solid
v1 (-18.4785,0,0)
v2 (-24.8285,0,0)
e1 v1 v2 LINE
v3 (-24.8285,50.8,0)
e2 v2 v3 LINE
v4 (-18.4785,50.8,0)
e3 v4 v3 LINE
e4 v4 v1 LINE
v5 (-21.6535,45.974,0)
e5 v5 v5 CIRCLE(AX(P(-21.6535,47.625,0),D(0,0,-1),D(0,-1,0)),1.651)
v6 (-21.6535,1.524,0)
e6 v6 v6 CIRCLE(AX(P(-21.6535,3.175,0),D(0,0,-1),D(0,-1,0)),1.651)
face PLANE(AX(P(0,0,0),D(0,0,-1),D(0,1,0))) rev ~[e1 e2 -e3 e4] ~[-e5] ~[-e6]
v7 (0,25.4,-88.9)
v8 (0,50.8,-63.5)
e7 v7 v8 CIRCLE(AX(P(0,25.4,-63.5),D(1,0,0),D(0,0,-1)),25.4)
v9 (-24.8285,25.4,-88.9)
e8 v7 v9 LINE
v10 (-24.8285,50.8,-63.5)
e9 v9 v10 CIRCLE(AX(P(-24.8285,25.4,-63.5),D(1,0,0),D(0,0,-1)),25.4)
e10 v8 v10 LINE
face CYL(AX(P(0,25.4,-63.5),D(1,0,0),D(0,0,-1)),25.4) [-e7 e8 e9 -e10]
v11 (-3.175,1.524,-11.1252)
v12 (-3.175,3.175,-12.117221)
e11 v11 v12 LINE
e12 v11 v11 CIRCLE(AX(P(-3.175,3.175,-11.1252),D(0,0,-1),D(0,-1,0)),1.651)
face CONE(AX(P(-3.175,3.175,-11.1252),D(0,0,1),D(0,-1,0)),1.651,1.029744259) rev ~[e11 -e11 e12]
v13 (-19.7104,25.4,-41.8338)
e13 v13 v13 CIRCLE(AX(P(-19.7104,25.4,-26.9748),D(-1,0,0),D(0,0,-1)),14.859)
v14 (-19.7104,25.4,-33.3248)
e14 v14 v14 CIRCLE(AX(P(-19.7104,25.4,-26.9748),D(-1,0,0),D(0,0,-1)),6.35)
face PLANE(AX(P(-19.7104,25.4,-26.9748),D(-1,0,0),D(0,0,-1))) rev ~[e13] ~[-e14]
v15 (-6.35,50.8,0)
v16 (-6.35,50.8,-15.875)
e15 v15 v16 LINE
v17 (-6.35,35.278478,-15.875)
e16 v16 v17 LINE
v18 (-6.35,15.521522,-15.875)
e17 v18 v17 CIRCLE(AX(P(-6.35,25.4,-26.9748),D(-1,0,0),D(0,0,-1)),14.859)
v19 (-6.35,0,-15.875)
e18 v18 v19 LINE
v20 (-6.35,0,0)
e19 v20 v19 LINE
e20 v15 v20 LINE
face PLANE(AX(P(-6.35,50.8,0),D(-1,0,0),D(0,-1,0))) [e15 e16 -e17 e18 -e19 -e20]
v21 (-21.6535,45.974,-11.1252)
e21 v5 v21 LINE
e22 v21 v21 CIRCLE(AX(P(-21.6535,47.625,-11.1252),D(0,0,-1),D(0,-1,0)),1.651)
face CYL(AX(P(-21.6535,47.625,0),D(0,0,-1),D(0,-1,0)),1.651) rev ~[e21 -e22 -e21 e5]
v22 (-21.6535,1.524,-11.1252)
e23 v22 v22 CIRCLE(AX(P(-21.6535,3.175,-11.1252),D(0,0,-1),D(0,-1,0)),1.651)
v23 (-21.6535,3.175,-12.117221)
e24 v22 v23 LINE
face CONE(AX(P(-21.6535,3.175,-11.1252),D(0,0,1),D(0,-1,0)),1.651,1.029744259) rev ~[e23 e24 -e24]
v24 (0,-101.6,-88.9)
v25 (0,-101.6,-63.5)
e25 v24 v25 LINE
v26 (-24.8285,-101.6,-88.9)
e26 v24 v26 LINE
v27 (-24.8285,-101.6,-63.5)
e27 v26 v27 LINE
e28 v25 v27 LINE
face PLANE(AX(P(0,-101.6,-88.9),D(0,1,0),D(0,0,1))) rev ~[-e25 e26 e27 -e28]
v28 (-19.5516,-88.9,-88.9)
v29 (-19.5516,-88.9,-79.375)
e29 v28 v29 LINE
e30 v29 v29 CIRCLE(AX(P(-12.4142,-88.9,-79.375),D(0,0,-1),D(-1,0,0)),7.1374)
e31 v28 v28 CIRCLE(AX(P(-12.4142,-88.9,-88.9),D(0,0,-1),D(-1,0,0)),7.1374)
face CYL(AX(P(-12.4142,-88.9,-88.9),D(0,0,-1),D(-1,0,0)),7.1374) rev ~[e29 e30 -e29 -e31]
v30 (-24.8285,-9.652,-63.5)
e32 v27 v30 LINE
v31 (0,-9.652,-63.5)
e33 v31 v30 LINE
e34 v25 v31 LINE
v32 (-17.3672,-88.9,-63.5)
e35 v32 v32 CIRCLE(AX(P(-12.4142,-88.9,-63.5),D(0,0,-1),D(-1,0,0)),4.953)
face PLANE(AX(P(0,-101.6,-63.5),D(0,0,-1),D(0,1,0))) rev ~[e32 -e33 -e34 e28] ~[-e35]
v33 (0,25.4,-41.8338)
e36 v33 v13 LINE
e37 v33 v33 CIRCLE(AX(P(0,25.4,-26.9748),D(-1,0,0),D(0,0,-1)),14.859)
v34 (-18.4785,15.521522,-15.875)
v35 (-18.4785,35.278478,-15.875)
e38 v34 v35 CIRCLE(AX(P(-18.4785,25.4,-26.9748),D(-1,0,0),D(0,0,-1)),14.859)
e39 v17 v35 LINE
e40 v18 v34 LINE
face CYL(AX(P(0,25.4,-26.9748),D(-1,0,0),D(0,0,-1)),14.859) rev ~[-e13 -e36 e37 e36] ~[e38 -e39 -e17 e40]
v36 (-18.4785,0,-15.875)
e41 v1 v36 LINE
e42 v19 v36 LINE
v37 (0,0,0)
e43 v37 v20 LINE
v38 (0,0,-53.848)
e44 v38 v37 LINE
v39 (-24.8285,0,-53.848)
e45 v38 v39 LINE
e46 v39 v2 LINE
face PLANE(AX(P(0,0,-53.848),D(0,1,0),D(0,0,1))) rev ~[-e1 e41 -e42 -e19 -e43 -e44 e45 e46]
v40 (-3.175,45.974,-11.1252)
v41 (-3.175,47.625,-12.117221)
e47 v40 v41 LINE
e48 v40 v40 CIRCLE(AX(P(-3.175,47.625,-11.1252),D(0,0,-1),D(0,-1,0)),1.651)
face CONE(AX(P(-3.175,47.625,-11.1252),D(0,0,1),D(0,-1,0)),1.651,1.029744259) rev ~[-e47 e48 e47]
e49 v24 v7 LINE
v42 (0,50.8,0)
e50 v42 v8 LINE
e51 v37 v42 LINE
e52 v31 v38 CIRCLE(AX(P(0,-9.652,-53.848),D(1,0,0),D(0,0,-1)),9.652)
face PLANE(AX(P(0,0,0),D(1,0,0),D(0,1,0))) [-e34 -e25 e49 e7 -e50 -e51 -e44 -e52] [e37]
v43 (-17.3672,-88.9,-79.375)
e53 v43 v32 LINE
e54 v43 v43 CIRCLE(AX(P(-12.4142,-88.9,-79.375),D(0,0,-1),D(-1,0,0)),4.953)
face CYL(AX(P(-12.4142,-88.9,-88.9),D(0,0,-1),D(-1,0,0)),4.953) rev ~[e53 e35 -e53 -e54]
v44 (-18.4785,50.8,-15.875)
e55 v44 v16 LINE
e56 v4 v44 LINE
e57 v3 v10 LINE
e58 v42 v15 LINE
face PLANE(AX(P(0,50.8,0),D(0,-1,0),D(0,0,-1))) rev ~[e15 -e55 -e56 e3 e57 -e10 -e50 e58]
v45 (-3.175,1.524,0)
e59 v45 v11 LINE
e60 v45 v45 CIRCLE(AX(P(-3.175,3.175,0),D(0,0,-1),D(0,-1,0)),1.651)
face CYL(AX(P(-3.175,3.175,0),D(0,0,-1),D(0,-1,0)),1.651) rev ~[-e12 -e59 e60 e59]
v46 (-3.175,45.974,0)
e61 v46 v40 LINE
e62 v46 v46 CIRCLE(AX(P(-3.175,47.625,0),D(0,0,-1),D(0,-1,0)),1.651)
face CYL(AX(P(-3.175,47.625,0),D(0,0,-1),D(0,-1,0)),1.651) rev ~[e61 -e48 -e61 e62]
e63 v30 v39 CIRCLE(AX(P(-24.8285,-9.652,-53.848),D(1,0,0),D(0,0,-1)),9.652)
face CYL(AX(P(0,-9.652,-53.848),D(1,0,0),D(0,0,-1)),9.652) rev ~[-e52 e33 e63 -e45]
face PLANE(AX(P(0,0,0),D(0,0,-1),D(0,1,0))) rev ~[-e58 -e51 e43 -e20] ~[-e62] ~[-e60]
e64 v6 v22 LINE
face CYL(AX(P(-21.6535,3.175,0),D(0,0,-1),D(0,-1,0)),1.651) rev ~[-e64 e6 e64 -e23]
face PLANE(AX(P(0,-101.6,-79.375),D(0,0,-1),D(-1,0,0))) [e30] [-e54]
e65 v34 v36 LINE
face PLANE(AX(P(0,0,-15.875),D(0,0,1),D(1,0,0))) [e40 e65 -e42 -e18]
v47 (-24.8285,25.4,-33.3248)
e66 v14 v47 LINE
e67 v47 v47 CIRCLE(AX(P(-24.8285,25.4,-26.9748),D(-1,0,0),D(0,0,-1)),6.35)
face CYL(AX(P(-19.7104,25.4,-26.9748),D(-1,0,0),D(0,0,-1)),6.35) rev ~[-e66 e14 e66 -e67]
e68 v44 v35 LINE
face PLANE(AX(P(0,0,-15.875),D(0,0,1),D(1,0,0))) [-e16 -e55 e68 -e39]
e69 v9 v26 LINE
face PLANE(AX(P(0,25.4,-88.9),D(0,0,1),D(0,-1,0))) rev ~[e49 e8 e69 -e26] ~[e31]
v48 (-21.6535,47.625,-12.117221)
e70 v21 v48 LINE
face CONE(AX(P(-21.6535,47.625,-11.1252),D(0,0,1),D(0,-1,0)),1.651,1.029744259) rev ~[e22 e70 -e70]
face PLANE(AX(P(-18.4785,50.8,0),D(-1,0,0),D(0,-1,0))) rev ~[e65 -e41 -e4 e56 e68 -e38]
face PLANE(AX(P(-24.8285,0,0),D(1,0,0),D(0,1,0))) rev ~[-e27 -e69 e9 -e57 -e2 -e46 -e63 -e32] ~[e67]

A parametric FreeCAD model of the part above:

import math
import FreeCAD as App
import Part
import Sketcher
from FreeCAD import Vector
Q = App.Units.Quantity


def add_polygon(sketch, points):
    """Adds a closed chain of lines whose ends are joined by coincident constraints."""
    first, n = sketch.GeometryCount, len(points)
    for a, b in zip(points, points[1:] + points[:1]):
        sketch.addGeometry(Part.LineSegment(App.Vector(*a, 0), App.Vector(*b, 0)), False)
    for i in range(n):
        sketch.addConstraint(Sketcher.Constraint("Coincident", first + i, 2, first + (i + 1) % n, 1))

doc = App.newDocument("Part")
body = doc.addObject("PartDesign::Body", "Body")

# Sketch on YZ plane
sketch1 = doc.addObject("Sketcher::SketchObject", "Sketch")
body.addObject(sketch1)
sketch1.AttachmentSupport = (doc.YZ_Plane, [""])
sketch1.MapMode = "FlatFace"
sketch1.addGeometry([
    Part.LineSegment(Vector(0, 0, 0), Vector(0, -54, 0)),  # 0
    Part.ArcOfCircle(Part.Circle(Vector(-10, -54, 0), Vector(0, 0, 1), 10), math.radians(-90), math.radians(0)),  # 1
    Part.LineSegment(Vector(-10, -64, 0), Vector(-102, -64, 0)),  # 2
    Part.LineSegment(Vector(-102, -64, 0), Vector(-102, -89, 0)),  # 3
    Part.LineSegment(Vector(-102, -89, 0), Vector(25, -89, 0)),  # 4
    Part.ArcOfCircle(Part.Circle(Vector(25, -64, 0), Vector(0, 0, 1), 25), math.radians(-90), math.radians(0)),  # 5
    Part.LineSegment(Vector(51, -64, 0), Vector(51, 0, 0)),  # 6
    Part.LineSegment(Vector(51, 0, 0), Vector(0, 0, 0)),  # 7
], False)
sketch1.addConstraint([
    Sketcher.Constraint("Tangent", 0, 2, 1, 2),
    Sketcher.Constraint("Tangent", 1, 1, 2, 1),
    Sketcher.Constraint("Coincident", 2, 2, 3, 1),
    Sketcher.Constraint("Coincident", 3, 2, 4, 1),
    Sketcher.Constraint("Tangent", 4, 2, 5, 1),
    Sketcher.Constraint("Tangent", 5, 2, 6, 1),
    Sketcher.Constraint("Coincident", 6, 2, 7, 1),
    Sketcher.Constraint("Coincident", 7, 2, 0, 1),
    Sketcher.Constraint("Vertical", 0),
    Sketcher.Constraint("Horizontal", 2),
    Sketcher.Constraint("Vertical", 3),
    Sketcher.Constraint("Horizontal", 4),
    Sketcher.Constraint("Vertical", 6),
    Sketcher.Constraint("Horizontal", 7),
    Sketcher.Constraint("Coincident", 7, 2, -1, 1),
    Sketcher.Constraint("Horizontal", 5, 3, 1, 1),
    Sketcher.Constraint("Radius", 5, Q("1 in")),
    Sketcher.Constraint("DistanceX", 7, 2, 7, 1, Q("2 in")),
    Sketcher.Constraint("Radius", 1, Q("0.38 in")),
    Sketcher.Constraint("DistanceY", 3, 2, -1, 1, Q("3.5 in")),
    Sketcher.Constraint("DistanceX", 4, 1, 4, 2, Q("5 in")),
])
pad1 = doc.addObject("PartDesign::Pad", "Pad")
body.addObject(pad1)
pad1.Profile = sketch1
pad1.Length = Q("0.9775 in")
pad1.Reversed = True

# Sketch on XY plane
sketch2 = doc.addObject("Sketcher::SketchObject", "Sketch001")
body.addObject(sketch2)
sketch2.AttachmentSupport = (doc.XY_Plane, [""])
sketch2.MapMode = "FlatFace"
sketch2.AttachmentOffset = App.Placement(Vector(0, 0, -3.5 * 25.4), App.Rotation())
sketch2.addGeometry(Part.Circle(Vector(-12.4, -88.9, 0), Vector(0, 0, 1), 5), False)
sketch2.addConstraint([
    Sketcher.Constraint("Diameter", 0, Q("0.39 in")),
    Sketcher.Constraint("DistanceY", 0, 3, -1, 1, Q("3.5 in")),
    Sketcher.Constraint("DistanceX", 0, 3, -1, 1, 12.4142),
])
pocket1 = doc.addObject("PartDesign::Pocket", "Pocket")
body.addObject(pocket1)
pocket1.Profile = sketch2
pocket1.Type = "ThroughAll"
pocket1.Reversed = True

# Sketch on XY plane
sketch3 = doc.addObject("Sketcher::SketchObject", "Sketch002")
body.addObject(sketch3)
sketch3.AttachmentSupport = (doc.XY_Plane, [""])
sketch3.MapMode = "FlatFace"
sketch3.AttachmentOffset = App.Placement(Vector(0, 0, -3.5 * 25.4), App.Rotation())
sketch3.addGeometry([
    Part.Circle(Vector(-12.4, -88.9, 0), Vector(0, 0, 1), 7.1),
    Part.Circle(Vector(-12.4, -88.9, 0), Vector(0, 0, 1), 5),
], False)
sketch3.addConstraint([
    Sketcher.Constraint("Coincident", 1, 3, 0, 3),
    Sketcher.Constraint("Diameter", 0, Q("0.562 in")),
    Sketcher.Constraint("Diameter", 1, Q("0.39 in")),
    Sketcher.Constraint("DistanceY", 0, 3, -1, 1, Q("3.5 in")),
    Sketcher.Constraint("DistanceX", 0, 3, -1, 1, 12.4142),
])
pocket2 = doc.addObject("PartDesign::Pocket", "Pocket001")
body.addObject(pocket2)
pocket2.Profile = sketch3
pocket2.Length = Q("0.375 in")
pocket2.Reversed = True

# Sketch on XY plane
sketch4 = doc.addObject("Sketcher::SketchObject", "Sketch003")
body.addObject(sketch4)
sketch4.AttachmentSupport = (doc.XY_Plane, [""])
sketch4.MapMode = "FlatFace"
add_polygon(sketch4, [(-18, 0), (-6, 0), (-6, 51), (-18, 51)])  # lines 0-3
sketch4.addConstraint([
    Sketcher.Constraint("Horizontal", 0),
    Sketcher.Constraint("Vertical", 1),
    Sketcher.Constraint("Horizontal", 2),
    Sketcher.Constraint("Vertical", 3),
    Sketcher.Constraint("PointOnObject", 0, 2, -1),
    Sketcher.Constraint("DistanceY", 1, 1, 1, 2, Q("2 in")),
    Sketcher.Constraint("DistanceX", 0, 2, -1, 1, Q("0.25 in")),
    Sketcher.Constraint("DistanceX", 0, 1, 0, 2, Q("0.4775 in")),
])
pocket3 = doc.addObject("PartDesign::Pocket", "Pocket002")
body.addObject(pocket3)
pocket3.Profile = sketch4
pocket3.Length = Q("0.625 in")

# Sketch on XY plane
sketch5 = doc.addObject("Sketcher::SketchObject", "Sketch004")
body.addObject(sketch5)
sketch5.AttachmentSupport = (doc.XY_Plane, [""])
sketch5.MapMode = "FlatFace"
sketch5.addGeometry([
    Part.Circle(Vector(-21.7, 47.6, 0), Vector(0, 0, 1), 1.7),
    Part.Circle(Vector(-3.2, 47.6, 0), Vector(0, 0, 1), 1.7),
    Part.Circle(Vector(-3.2, 3.2, 0), Vector(0, 0, 1), 1.7),
    Part.Circle(Vector(-21.7, 3.2, 0), Vector(0, 0, 1), 1.7),
], False)
sketch5.addConstraint([
    Sketcher.Constraint("Equal", 0, 1),
    Sketcher.Constraint("Equal", 1, 2),
    Sketcher.Constraint("Equal", 2, 3),
    Sketcher.Constraint("Horizontal", 0, 3, 1, 3),
    Sketcher.Constraint("Horizontal", 2, 3, 3, 3),
    Sketcher.Constraint("Vertical", 1, 3, 2, 3),
    Sketcher.Constraint("Vertical", 0, 3, 3, 3),
    Sketcher.Constraint("Diameter", 0, Q("0.13 in")),
    Sketcher.Constraint("DistanceY", 2, 3, 1, 3, Q("1.75 in")),
    Sketcher.Constraint("DistanceY", -1, 1, 0, 3, Q("1.875 in")),
    Sketcher.Constraint("DistanceX", 1, 3, -1, 1, Q("0.125 in")),
    Sketcher.Constraint("DistanceX", 0, 3, -1, 1, Q("0.8525 in")),
])
doc.recompute()
hole = doc.addObject("PartDesign::Hole", "Hole")
body.addObject(hole)
hole.Profile = sketch5
hole.ThreadType = "None"
hole.Diameter = Q("0.13 in")
hole.DepthType = "Dimension"
hole.Depth = Q("0.438 in")
hole.DrillPoint = "Angled"
hole.DrillPointAngle = 118

# Sketch on YZ plane
sketch6 = doc.addObject("Sketcher::SketchObject", "Sketch005")
body.addObject(sketch6)
sketch6.AttachmentSupport = (doc.YZ_Plane, [""])
sketch6.MapMode = "FlatFace"
sketch6.addGeometry(Part.Circle(Vector(25, -27, 0), Vector(0, 0, 1), 6), False)
sketch6.addConstraint([
    Sketcher.Constraint("Diameter", 0, Q("0.5 in")),
    Sketcher.Constraint("DistanceX", -1, 1, 0, 3, Q("1 in")),
    Sketcher.Constraint("DistanceY", 0, 3, -1, 1, Q("1.062 in")),
])
doc.recompute()
hole2 = doc.addObject("PartDesign::Hole", "Hole001")
body.addObject(hole2)
hole2.Profile = sketch6
hole2.ThreadType = "None"
hole2.Diameter = Q("0.5 in")
hole2.DepthType = "ThroughAll"
hole2.HoleCutType = "Counterbore"
hole2.HoleCutDiameter = Q("1.17 in")
hole2.HoleCutDepth = Q("0.776 in")

doc.recompute()
